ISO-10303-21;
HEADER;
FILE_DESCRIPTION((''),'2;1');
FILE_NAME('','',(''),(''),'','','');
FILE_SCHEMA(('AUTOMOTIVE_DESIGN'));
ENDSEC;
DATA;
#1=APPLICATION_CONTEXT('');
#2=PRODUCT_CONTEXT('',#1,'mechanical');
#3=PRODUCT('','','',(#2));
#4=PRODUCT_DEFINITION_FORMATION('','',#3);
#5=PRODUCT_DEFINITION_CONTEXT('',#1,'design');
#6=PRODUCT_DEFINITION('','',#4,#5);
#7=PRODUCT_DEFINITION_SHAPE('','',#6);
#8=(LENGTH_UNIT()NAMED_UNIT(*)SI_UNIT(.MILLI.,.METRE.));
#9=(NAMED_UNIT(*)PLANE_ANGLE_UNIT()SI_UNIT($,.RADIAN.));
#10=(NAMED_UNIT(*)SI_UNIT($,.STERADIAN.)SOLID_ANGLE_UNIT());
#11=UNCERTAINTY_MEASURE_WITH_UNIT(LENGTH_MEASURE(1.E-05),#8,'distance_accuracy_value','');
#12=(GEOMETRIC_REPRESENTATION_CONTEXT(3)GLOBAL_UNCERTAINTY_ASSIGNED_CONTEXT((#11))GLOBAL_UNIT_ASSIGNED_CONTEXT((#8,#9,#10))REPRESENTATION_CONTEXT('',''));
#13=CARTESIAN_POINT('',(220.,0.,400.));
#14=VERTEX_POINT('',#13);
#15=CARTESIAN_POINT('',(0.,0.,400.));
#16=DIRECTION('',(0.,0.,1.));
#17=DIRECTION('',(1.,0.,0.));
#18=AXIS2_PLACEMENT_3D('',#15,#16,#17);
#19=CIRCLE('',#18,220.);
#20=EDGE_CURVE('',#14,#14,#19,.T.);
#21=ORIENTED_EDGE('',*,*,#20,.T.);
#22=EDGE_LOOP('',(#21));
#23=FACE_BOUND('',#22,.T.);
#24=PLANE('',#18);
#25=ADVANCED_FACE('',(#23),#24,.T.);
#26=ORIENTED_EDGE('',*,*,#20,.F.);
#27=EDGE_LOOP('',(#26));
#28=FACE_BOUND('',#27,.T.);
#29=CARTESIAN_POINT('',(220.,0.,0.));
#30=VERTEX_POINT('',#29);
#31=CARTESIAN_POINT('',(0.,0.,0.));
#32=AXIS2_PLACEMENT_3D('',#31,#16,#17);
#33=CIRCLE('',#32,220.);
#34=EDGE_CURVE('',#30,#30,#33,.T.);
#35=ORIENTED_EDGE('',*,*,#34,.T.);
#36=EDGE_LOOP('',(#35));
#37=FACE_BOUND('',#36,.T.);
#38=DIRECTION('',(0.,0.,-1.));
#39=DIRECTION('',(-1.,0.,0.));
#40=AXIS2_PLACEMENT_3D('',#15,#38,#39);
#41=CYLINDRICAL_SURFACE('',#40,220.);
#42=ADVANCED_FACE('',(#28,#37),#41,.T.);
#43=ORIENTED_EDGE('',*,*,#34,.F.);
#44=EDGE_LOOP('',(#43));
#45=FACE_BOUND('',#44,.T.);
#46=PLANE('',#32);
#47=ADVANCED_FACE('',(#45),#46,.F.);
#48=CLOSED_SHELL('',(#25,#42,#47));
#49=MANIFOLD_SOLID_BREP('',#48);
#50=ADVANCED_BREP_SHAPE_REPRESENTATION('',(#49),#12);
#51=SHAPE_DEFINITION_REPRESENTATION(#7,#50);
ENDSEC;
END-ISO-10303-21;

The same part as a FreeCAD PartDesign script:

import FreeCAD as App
import Part
import Sketcher
Q = App.Units.Quantity

doc = App.newDocument("Part")
body = doc.addObject("PartDesign::Body", "Body")

sketch1 = body.newObject("Sketcher::SketchObject", "Sketch")
sketch1.AttachmentSupport = (doc.getObject("XY_Plane"), [""])
sketch1.MapMode = "FlatFace"
sketch1.addGeometry(Part.Circle(App.Vector(0, 0, 0), App.Vector(0, 0, 1), 220), False)
sketch1.addConstraint([
    Sketcher.Constraint("Coincident", 0, 3, -1, 1),
    Sketcher.Constraint("Diameter", 0, Q("440 mm")),
])
pad1 = body.newObject("PartDesign::Pad", "Pad")
pad1.Profile = sketch1
pad1.Length = 400

doc.recompute()
